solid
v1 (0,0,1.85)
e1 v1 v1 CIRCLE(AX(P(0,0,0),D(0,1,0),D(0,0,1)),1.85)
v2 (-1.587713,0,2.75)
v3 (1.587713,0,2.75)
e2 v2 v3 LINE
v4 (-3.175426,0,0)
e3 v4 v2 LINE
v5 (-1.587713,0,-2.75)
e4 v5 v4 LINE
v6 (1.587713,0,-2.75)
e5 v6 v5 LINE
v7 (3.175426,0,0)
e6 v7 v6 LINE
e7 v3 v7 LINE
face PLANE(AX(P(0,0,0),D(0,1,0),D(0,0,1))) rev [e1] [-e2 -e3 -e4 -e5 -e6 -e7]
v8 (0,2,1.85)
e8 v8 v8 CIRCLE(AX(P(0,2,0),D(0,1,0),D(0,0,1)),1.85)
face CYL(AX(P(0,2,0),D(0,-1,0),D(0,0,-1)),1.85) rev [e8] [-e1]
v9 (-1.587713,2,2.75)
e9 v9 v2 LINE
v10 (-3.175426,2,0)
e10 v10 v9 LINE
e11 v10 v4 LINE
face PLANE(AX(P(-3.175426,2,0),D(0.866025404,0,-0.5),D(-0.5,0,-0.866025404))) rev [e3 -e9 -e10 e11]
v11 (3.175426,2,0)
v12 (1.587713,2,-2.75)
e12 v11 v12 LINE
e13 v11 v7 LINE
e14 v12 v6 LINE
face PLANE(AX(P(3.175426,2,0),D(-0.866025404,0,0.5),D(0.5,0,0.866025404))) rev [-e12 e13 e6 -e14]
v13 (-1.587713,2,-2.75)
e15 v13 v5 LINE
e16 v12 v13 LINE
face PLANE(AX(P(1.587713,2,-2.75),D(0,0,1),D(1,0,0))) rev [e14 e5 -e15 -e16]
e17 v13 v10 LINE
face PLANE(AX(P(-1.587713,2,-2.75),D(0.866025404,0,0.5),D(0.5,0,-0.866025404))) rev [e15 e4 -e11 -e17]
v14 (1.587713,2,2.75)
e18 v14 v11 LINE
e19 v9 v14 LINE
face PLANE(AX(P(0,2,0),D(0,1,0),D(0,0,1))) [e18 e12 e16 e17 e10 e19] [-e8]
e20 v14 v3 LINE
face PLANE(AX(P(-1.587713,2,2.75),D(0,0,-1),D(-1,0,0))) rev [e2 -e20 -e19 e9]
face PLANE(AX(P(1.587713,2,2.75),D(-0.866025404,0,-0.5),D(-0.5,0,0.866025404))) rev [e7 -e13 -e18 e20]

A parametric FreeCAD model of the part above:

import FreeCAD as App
import Part
import Sketcher
Q = App.Units.Quantity

doc = App.newDocument("Part")
body = doc.addObject("PartDesign::Body", "Body")

# Sketch on XZ plane
sketch1 = body.newObject("Sketcher::SketchObject", "Sketch")
sketch1.AttachmentSupport = (doc.getObject("XZ_Plane"), [""])
sketch1.MapMode = "FlatFace"
sketch1.addGeometry(Part.LineSegment(App.Vector(3.2, 0, 0), App.Vector(1.6, -2.8, 0)), False)
sketch1.addGeometry(Part.LineSegment(App.Vector(1.6, -2.8, 0), App.Vector(-1.6, -2.8, 0)), False)
sketch1.addGeometry(Part.LineSegment(App.Vector(-1.6, -2.8, 0), App.Vector(-3.2, 0, 0)), False)
sketch1.addGeometry(Part.LineSegment(App.Vector(-3.2, 0, 0), App.Vector(-1.6, 2.8, 0)), False)
sketch1.addGeometry(Part.LineSegment(App.Vector(-1.6, 2.8, 0), App.Vector(1.6, 2.8, 0)), False)
sketch1.addGeometry(Part.LineSegment(App.Vector(1.6, 2.8, 0), App.Vector(3.2, 0, 0)), False)
sketch1.addGeometry(Part.Circle(App.Vector(0, 0, 0), App.Vector(0, 0, 1), 1.9), False)
sketch1.addConstraint(Sketcher.Constraint("Coincident", 0, 2, 1, 1))
sketch1.addConstraint(Sketcher.Constraint("Coincident", 1, 2, 2, 1))
sketch1.addConstraint(Sketcher.Constraint("Coincident", 2, 2, 3, 1))
sketch1.addConstraint(Sketcher.Constraint("Coincident", 3, 2, 4, 1))
sketch1.addConstraint(Sketcher.Constraint("Coincident", 4, 2, 5, 1))
sketch1.addConstraint(Sketcher.Constraint("Coincident", 5, 2, 0, 1))
sketch1.addConstraint(Sketcher.Constraint("Horizontal", 1))
sketch1.addConstraint(Sketcher.Constraint("Horizontal", 4))
sketch1.addConstraint(Sketcher.Constraint("Coincident", 6, 3, -1, 1))
sketch1.addConstraint(Sketcher.Constraint("Symmetric", 0, 2, 3, 2, -1, 1))
sketch1.addConstraint(Sketcher.Constraint("Symmetric", 2, 2, 5, 2, -1, 1))
sketch1.addConstraint(Sketcher.Constraint("PointOnObject", 2, 2, -1))
sketch1.addConstraint(Sketcher.Constraint("Parallel", 2, 5))
sketch1.addConstraint(Sketcher.Constraint("Vertical", 1, 2, 3, 2))
sketch1.addConstraint(Sketcher.Constraint("Diameter", 6, 3.7))
sketch1.addConstraint(Sketcher.Constraint("Angle", 0, Q("-120 deg")))
sketch1.addConstraint(Sketcher.Constraint("DistanceY", 1, 2, 3, 2, 5.5))
sketch1.addConstraint(Sketcher.Constraint("DistanceX", 1, 2, 1, 1, 3.175426))
pad1 = body.newObject("PartDesign::Pad", "Pad")
pad1.Profile = sketch1
pad1.Length = 2
pad1.Reversed = True

doc.recompute()
